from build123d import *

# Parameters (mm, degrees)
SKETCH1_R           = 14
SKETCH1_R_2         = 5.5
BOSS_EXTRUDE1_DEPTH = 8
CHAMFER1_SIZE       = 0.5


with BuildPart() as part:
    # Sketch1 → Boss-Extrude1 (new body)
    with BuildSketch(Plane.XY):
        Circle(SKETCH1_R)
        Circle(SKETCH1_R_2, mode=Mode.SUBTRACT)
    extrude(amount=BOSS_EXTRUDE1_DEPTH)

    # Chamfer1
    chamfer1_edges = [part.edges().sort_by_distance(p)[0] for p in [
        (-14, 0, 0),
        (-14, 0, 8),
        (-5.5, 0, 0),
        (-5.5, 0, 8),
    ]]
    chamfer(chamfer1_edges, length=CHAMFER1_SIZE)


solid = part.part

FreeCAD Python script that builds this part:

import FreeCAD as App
import Part
import Sketcher

V = App.Vector
Q = App.Units.Quantity


def edges_at(feature, points):
    """Names of the edges that pass closest to the given points."""
    edges = feature.Shape.Edges
    near = lambda p: min(range(len(edges)), key=lambda i: edges[i].distToShape(Part.Vertex(*p))[0])
    return sorted({f"Edge{near(p) + 1}" for p in points})

doc = App.newDocument("Part")
body = doc.addObject("PartDesign::Body", "Body")

# Sketch on XY plane
sketch1 = doc.addObject("Sketcher::SketchObject", "Sketch")
body.addObject(sketch1)
sketch1.AttachmentSupport = (doc.XY_Plane, [""])
sketch1.MapMode = "FlatFace"
sketch1.addGeometry([
    Part.Circle(V(0, 0, 0), V(0, 0, 1), 14),
    Part.Circle(V(0, 0, 0), V(0, 0, 1), 6),
], False)
sketch1.addConstraint([
    Sketcher.Constraint("Coincident", 0, 3, -1, 1),
    Sketcher.Constraint("Coincident", 1, 3, -1, 1),
    Sketcher.Constraint("Diameter", 0, Q("28 mm")),
    Sketcher.Constraint("Diameter", 1, Q("11 mm")),
])
pad1 = doc.addObject("PartDesign::Pad", "Pad")
body.addObject(pad1)
pad1.Profile = sketch1
pad1.Length = 8
doc.recompute()

chamfer = doc.addObject("PartDesign::Chamfer", "Chamfer")
body.addObject(chamfer)
chamfer.Base = (pad1, edges_at(pad1, [
    (-14, 0, 0),
    (-14, 0, 8),
    (-5.5, 0, 0),
    (-5.5, 0, 8),
]))
chamfer.Size = 0.5

doc.recompute()
